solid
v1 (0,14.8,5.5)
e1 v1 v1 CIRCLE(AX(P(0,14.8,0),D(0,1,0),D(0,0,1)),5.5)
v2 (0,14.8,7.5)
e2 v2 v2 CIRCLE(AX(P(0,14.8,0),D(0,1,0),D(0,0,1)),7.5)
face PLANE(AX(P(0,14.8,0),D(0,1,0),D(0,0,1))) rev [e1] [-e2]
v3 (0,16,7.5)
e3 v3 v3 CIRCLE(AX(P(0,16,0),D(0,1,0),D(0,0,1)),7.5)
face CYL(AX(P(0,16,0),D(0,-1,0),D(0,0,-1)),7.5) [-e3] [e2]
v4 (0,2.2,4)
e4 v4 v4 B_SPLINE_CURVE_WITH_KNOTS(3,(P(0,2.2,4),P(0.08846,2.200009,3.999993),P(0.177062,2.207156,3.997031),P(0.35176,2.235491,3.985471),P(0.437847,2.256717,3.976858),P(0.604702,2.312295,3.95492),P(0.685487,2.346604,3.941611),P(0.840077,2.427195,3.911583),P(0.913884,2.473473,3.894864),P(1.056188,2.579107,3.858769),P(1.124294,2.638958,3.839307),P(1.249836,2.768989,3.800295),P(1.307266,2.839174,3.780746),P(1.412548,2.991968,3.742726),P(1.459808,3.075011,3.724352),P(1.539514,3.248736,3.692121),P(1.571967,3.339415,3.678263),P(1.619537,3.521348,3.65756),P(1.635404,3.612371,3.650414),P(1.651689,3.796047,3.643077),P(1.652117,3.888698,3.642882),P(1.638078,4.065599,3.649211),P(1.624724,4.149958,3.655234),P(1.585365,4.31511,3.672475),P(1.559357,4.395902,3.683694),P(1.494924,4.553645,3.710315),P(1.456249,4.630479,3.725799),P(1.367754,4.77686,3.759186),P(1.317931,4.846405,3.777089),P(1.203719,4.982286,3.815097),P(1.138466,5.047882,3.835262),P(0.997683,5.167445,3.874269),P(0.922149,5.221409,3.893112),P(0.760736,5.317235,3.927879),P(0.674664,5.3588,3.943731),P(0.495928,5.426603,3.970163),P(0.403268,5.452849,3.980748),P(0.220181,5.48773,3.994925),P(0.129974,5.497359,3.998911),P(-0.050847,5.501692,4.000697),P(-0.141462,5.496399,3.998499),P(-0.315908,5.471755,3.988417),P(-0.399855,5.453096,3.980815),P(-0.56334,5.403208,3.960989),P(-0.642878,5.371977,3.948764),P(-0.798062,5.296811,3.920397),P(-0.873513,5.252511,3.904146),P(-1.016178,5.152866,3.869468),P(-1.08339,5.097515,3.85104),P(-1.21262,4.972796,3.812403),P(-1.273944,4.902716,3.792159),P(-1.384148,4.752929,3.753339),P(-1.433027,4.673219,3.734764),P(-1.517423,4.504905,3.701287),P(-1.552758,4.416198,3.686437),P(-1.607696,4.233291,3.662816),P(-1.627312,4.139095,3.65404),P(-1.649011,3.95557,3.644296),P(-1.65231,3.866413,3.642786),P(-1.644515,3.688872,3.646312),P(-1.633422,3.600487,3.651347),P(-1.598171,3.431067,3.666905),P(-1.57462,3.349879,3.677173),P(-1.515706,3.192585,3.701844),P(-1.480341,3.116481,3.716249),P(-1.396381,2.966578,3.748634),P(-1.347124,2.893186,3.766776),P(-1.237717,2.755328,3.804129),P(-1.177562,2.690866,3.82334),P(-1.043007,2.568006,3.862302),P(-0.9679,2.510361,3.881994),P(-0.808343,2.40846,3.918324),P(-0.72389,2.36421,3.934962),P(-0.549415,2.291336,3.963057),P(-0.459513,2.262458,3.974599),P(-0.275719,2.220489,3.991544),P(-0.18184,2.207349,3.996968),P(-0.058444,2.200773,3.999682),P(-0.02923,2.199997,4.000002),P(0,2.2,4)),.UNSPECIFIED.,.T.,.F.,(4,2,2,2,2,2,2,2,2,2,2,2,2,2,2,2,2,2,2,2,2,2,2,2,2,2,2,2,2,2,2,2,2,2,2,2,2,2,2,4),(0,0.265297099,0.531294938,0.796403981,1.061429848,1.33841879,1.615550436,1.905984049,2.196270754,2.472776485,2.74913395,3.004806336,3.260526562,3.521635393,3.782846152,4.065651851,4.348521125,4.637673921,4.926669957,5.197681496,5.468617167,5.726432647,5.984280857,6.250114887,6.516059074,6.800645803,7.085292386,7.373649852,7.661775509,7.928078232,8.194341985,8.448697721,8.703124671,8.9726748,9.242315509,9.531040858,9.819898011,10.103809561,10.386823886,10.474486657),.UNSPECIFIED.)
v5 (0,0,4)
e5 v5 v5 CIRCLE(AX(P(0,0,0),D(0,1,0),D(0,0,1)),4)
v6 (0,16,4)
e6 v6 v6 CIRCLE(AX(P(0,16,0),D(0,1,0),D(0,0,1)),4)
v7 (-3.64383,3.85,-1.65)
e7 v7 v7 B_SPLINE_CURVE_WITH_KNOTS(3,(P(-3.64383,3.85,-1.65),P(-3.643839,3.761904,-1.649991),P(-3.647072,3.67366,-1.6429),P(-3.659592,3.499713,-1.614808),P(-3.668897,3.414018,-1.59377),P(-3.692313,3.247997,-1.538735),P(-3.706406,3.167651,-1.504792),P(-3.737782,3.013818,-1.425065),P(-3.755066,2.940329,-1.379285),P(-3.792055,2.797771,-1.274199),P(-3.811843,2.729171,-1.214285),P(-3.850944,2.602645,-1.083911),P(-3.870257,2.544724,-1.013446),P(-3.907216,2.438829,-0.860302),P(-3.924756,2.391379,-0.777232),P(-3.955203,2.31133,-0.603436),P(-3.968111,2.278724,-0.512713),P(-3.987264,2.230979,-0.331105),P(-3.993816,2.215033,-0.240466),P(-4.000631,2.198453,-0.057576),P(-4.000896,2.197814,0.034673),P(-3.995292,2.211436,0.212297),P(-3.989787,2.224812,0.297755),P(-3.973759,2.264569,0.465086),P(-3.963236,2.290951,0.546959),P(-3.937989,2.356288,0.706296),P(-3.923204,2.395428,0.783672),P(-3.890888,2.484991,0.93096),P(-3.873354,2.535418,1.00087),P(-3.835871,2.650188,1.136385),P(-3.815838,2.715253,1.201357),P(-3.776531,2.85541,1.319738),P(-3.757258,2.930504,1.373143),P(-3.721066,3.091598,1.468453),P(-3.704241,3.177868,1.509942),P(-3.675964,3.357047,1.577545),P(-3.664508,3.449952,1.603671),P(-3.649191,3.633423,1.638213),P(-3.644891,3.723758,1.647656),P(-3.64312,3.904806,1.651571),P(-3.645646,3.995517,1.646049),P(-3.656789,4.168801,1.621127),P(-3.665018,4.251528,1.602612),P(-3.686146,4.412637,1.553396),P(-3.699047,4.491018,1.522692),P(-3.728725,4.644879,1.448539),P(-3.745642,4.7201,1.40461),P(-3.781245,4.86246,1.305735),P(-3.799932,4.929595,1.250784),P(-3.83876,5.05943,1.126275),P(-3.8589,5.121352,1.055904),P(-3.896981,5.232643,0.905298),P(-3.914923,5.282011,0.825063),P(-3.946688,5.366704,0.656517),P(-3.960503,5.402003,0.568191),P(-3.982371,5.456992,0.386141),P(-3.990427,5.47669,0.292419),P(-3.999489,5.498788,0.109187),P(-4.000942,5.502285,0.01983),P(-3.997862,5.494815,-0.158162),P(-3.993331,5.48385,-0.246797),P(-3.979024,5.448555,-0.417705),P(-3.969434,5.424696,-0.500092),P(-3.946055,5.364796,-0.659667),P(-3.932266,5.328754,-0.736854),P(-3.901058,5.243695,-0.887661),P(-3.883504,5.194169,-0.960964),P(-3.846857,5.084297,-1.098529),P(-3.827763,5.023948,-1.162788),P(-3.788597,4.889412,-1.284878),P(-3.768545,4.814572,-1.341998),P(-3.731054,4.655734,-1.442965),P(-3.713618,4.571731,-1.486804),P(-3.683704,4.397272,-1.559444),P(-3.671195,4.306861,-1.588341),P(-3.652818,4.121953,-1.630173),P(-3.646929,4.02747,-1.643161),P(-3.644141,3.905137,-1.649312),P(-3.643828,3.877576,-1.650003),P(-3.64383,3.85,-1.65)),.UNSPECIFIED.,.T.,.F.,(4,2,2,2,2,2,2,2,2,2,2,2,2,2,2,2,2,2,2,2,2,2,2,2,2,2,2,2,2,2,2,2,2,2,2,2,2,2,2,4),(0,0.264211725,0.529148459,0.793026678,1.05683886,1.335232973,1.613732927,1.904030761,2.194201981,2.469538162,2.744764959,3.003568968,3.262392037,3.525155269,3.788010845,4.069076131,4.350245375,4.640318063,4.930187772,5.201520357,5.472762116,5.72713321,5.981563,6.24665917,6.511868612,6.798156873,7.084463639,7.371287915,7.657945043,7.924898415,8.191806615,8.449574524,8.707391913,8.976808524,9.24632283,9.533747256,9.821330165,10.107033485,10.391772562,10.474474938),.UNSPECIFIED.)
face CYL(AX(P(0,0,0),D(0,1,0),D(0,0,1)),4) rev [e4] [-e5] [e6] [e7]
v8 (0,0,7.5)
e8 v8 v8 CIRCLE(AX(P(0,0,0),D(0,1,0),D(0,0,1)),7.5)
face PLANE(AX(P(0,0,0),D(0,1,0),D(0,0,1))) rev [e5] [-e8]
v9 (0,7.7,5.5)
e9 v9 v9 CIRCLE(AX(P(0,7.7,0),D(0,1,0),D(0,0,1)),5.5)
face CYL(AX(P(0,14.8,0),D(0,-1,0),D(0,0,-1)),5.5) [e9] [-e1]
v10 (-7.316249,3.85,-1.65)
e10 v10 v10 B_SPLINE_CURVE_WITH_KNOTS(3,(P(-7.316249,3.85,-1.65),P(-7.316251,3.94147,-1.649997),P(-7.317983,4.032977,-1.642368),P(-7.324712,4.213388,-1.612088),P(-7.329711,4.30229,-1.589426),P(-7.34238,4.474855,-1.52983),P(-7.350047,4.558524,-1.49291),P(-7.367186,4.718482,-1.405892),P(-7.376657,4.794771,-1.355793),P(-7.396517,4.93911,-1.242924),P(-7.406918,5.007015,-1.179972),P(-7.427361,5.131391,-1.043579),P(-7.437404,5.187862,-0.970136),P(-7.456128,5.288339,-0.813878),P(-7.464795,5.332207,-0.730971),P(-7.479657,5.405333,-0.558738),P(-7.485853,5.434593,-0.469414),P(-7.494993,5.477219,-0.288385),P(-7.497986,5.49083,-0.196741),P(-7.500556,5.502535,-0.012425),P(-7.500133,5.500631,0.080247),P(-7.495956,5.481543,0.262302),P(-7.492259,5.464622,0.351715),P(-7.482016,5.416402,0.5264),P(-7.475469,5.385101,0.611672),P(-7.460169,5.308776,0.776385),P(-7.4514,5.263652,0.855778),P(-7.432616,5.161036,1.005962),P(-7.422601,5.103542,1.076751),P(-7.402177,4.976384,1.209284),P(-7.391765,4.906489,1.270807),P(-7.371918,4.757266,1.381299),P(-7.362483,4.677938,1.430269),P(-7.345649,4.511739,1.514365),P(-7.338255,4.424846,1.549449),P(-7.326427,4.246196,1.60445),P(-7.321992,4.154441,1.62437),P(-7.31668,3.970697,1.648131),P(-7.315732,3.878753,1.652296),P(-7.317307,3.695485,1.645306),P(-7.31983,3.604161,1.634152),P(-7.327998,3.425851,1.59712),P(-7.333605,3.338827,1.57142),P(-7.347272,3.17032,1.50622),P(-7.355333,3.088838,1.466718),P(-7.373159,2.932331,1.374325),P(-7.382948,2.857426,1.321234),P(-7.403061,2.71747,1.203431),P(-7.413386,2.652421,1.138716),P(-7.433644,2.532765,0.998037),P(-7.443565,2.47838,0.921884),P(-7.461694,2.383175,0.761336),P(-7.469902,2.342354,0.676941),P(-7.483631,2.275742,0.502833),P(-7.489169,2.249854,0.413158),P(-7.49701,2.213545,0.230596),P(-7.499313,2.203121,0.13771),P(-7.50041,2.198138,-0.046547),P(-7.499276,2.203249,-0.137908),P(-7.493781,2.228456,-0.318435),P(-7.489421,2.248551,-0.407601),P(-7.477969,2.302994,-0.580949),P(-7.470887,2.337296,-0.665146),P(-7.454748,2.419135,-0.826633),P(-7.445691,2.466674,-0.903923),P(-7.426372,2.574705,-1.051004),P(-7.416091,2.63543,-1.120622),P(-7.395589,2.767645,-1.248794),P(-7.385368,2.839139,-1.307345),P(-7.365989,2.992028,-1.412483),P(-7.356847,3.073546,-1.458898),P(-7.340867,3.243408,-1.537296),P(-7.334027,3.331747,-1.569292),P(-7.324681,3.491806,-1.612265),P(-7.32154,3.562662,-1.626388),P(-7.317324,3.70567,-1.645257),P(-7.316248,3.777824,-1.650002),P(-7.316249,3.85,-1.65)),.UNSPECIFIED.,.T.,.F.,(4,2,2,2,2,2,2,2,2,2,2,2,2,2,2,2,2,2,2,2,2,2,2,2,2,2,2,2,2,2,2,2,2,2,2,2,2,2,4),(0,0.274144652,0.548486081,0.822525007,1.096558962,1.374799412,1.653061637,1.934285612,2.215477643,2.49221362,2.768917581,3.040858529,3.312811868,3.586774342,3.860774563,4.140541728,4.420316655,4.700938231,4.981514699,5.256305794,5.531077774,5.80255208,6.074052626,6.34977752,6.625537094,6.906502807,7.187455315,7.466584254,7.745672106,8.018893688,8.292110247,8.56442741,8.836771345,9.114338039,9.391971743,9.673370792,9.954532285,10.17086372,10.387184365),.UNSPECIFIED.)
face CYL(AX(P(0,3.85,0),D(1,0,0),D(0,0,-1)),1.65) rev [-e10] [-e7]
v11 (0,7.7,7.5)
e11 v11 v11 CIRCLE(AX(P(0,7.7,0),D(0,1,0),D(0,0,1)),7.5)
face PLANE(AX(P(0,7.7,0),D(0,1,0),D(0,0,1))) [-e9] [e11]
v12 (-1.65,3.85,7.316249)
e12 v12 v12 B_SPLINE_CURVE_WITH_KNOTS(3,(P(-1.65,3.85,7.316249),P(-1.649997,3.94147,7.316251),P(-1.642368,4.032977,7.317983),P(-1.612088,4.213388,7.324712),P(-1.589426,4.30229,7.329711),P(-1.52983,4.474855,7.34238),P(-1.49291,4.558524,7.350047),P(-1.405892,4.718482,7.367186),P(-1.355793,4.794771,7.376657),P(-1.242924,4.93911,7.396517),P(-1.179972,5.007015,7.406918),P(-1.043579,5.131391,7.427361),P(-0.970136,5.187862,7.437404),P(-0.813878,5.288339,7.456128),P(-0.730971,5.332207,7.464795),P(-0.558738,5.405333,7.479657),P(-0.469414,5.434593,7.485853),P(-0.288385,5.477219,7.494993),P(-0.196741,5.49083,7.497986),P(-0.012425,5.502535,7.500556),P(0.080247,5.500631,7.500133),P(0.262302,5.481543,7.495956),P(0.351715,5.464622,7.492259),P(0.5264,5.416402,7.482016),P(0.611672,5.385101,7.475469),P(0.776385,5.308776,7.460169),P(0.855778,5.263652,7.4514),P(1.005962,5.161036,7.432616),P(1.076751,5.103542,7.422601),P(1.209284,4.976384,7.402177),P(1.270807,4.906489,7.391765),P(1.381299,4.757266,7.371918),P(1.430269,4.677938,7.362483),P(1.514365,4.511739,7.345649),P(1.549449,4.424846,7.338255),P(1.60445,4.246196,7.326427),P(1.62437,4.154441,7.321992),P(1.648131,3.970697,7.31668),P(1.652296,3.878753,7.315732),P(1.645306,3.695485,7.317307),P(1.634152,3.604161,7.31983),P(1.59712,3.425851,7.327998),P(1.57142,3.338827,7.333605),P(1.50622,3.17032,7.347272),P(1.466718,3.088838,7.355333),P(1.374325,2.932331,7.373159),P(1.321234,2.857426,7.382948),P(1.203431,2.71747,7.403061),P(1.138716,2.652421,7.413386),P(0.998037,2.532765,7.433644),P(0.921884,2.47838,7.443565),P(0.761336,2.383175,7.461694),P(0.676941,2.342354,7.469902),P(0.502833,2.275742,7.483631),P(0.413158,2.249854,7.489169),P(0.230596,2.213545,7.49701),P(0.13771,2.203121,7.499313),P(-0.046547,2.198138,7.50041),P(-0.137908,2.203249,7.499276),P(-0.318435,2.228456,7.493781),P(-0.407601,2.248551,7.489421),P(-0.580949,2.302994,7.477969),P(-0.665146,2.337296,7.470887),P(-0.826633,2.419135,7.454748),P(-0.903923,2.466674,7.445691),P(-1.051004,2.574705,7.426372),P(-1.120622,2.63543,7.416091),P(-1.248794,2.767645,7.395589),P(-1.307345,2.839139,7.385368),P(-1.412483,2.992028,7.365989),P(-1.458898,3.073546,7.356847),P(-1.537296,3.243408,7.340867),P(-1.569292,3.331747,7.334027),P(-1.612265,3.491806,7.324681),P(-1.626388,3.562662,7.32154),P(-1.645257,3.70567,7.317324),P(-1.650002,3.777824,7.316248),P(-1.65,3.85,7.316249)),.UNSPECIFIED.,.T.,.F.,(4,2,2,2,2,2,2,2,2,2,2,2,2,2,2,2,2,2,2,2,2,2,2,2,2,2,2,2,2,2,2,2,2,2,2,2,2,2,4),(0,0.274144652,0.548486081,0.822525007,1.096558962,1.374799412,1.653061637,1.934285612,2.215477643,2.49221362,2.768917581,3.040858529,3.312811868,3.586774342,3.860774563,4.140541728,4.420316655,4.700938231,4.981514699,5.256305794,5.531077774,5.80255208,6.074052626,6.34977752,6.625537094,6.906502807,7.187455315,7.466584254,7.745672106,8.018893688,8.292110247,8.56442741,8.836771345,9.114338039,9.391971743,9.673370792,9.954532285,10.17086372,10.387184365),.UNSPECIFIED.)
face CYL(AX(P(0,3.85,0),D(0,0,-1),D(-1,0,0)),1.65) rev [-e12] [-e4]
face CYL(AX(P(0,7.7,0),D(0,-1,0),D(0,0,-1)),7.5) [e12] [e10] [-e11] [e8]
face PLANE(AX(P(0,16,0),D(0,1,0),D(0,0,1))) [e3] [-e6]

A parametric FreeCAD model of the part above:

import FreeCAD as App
import Part
import Sketcher

doc = App.newDocument("Part")
body = doc.addObject("PartDesign::Body", "Body")

sketch1 = doc.addObject("Sketcher::SketchObject", "Sketch")
body.addObject(sketch1)
sketch1.AttachmentSupport = (doc.XZ_Plane, [""])
sketch1.MapMode = "FlatFace"
sketch1.addGeometry(Part.Circle(App.Vector(0, 0, 0), App.Vector(0, 0, 1), 8), False)
sketch1.addConstraint([
    Sketcher.Constraint("Coincident", 0, 3, -1, 1),
    Sketcher.Constraint("Diameter", 0, 15.0),
])
pad1 = doc.addObject("PartDesign::Pad", "Pad")
body.addObject(pad1)
pad1.Profile = sketch1
pad1.Length = 7.7
pad1.Reversed = True

sketch2 = doc.addObject("Sketcher::SketchObject", "Sketch001")
body.addObject(sketch2)
sketch2.AttachmentSupport = (doc.XZ_Plane, [""])
sketch2.MapMode = "FlatFace"
sketch2.AttachmentOffset = App.Placement(App.Vector(0, 0, -7.7), App.Rotation())
sketch2.addGeometry(Part.Circle(App.Vector(0, 0, 0), App.Vector(0, 0, 1), 6), False)
sketch2.addConstraint([
    Sketcher.Constraint("Coincident", 0, 3, -1, 1),
    Sketcher.Constraint("Diameter", 0, 11.0),
])
pad2 = doc.addObject("PartDesign::Pad", "Pad001")
body.addObject(pad2)
pad2.Profile = sketch2
pad2.Length = 7.1
pad2.Reversed = True

sketch3 = doc.addObject("Sketcher::SketchObject", "Sketch002")
body.addObject(sketch3)
sketch3.AttachmentSupport = (doc.XZ_Plane, [""])
sketch3.MapMode = "FlatFace"
sketch3.AttachmentOffset = App.Placement(App.Vector(0, 0, -14.8), App.Rotation())
sketch3.addGeometry(Part.Circle(App.Vector(0, 0, 0), App.Vector(0, 0, 1), 8), False)
sketch3.addConstraint([
    Sketcher.Constraint("Coincident", 0, 3, -1, 1),
    Sketcher.Constraint("Diameter", 0, 15.0),
])
pad3 = doc.addObject("PartDesign::Pad", "Pad002")
body.addObject(pad3)
pad3.Profile = sketch3
pad3.Length = 1.2
pad3.Reversed = True

sketch4 = doc.addObject("Sketcher::SketchObject", "Sketch003")
body.addObject(sketch4)
sketch4.AttachmentSupport = (doc.XZ_Plane, [""])
sketch4.MapMode = "FlatFace"
sketch4.AttachmentOffset = App.Placement(App.Vector(0, 0, -16), App.Rotation())
sketch4.addGeometry(Part.Circle(App.Vector(0, 0, 0), App.Vector(0, 0, 1), 4), False)
sketch4.addConstraint([
    Sketcher.Constraint("Coincident", 0, 3, -1, 1),
    Sketcher.Constraint("Diameter", 0, 8.0),
])
pocket1 = doc.addObject("PartDesign::Pocket", "Pocket")
body.addObject(pocket1)
pocket1.Profile = sketch4
pocket1.Type = "ThroughAll"
pocket1.Reversed = True

sketch5 = doc.addObject("Sketcher::SketchObject", "Sketch004")
body.addObject(sketch5)
sketch5.AttachmentSupport = (doc.YZ_Plane, [""])
sketch5.MapMode = "FlatFace"
sketch5.addGeometry([
    Part.LineSegment(App.Vector(3.9, 7.5, 0), App.Vector(3.9, 0, 0)),
    Part.LineSegment(App.Vector(3.9, 0, 0), App.Vector(5.5, 0, 0)),
    Part.LineSegment(App.Vector(5.5, 0, 0), App.Vector(5.5, 7.5, 0)),
    Part.LineSegment(App.Vector(5.5, 7.5, 0), App.Vector(3.9, 7.5, 0)),
], False)
sketch5.addGeometry(Part.LineSegment(App.Vector(3.9, 0, 0), App.Vector(3.9, 7.5, 0)), True)
sketch5.addConstraint([
    Sketcher.Constraint("Coincident", 0, 2, 1, 1),
    Sketcher.Constraint("Coincident", 1, 2, 2, 1),
    Sketcher.Constraint("Coincident", 2, 2, 3, 1),
    Sketcher.Constraint("Coincident", 3, 2, 0, 1),
    Sketcher.Constraint("Vertical", 0),
    Sketcher.Constraint("Horizontal", 1),
    Sketcher.Constraint("Vertical", 2),
    Sketcher.Constraint("Horizontal", 3),
    Sketcher.Constraint("Vertical", 4),
    Sketcher.Constraint("Coincident", 4, 1, 0, 2),
    Sketcher.Constraint("PointOnObject", 0, 2, -1),
    Sketcher.Constraint("Horizontal", 2, 2, 4, 2),
    Sketcher.Constraint("DistanceX", 1, 1, 1, 2, 1.65),
    Sketcher.Constraint("DistanceX", -1, 1, 1, 2, 5.5),
    Sketcher.Constraint("DistanceY", 0, 2, 0, 1, 7.501),
])
groove = doc.addObject("PartDesign::Groove", "Groove")
body.addObject(groove)
groove.Profile = sketch5
groove.ReferenceAxis = (sketch5, ["Axis0"])
groove.Angle = 360
doc.recompute()

polarpattern = doc.addObject("PartDesign::PolarPattern", "PolarPattern")
body.addObject(polarpattern)
polarpattern.Originals = [groove]
polarpattern.Axis = (doc.Y_Axis, [""])
polarpattern.Angle = 90
polarpattern.Occurrences = 2
polarpattern.Reversed = True
body.Tip = polarpattern

doc.recompute()
